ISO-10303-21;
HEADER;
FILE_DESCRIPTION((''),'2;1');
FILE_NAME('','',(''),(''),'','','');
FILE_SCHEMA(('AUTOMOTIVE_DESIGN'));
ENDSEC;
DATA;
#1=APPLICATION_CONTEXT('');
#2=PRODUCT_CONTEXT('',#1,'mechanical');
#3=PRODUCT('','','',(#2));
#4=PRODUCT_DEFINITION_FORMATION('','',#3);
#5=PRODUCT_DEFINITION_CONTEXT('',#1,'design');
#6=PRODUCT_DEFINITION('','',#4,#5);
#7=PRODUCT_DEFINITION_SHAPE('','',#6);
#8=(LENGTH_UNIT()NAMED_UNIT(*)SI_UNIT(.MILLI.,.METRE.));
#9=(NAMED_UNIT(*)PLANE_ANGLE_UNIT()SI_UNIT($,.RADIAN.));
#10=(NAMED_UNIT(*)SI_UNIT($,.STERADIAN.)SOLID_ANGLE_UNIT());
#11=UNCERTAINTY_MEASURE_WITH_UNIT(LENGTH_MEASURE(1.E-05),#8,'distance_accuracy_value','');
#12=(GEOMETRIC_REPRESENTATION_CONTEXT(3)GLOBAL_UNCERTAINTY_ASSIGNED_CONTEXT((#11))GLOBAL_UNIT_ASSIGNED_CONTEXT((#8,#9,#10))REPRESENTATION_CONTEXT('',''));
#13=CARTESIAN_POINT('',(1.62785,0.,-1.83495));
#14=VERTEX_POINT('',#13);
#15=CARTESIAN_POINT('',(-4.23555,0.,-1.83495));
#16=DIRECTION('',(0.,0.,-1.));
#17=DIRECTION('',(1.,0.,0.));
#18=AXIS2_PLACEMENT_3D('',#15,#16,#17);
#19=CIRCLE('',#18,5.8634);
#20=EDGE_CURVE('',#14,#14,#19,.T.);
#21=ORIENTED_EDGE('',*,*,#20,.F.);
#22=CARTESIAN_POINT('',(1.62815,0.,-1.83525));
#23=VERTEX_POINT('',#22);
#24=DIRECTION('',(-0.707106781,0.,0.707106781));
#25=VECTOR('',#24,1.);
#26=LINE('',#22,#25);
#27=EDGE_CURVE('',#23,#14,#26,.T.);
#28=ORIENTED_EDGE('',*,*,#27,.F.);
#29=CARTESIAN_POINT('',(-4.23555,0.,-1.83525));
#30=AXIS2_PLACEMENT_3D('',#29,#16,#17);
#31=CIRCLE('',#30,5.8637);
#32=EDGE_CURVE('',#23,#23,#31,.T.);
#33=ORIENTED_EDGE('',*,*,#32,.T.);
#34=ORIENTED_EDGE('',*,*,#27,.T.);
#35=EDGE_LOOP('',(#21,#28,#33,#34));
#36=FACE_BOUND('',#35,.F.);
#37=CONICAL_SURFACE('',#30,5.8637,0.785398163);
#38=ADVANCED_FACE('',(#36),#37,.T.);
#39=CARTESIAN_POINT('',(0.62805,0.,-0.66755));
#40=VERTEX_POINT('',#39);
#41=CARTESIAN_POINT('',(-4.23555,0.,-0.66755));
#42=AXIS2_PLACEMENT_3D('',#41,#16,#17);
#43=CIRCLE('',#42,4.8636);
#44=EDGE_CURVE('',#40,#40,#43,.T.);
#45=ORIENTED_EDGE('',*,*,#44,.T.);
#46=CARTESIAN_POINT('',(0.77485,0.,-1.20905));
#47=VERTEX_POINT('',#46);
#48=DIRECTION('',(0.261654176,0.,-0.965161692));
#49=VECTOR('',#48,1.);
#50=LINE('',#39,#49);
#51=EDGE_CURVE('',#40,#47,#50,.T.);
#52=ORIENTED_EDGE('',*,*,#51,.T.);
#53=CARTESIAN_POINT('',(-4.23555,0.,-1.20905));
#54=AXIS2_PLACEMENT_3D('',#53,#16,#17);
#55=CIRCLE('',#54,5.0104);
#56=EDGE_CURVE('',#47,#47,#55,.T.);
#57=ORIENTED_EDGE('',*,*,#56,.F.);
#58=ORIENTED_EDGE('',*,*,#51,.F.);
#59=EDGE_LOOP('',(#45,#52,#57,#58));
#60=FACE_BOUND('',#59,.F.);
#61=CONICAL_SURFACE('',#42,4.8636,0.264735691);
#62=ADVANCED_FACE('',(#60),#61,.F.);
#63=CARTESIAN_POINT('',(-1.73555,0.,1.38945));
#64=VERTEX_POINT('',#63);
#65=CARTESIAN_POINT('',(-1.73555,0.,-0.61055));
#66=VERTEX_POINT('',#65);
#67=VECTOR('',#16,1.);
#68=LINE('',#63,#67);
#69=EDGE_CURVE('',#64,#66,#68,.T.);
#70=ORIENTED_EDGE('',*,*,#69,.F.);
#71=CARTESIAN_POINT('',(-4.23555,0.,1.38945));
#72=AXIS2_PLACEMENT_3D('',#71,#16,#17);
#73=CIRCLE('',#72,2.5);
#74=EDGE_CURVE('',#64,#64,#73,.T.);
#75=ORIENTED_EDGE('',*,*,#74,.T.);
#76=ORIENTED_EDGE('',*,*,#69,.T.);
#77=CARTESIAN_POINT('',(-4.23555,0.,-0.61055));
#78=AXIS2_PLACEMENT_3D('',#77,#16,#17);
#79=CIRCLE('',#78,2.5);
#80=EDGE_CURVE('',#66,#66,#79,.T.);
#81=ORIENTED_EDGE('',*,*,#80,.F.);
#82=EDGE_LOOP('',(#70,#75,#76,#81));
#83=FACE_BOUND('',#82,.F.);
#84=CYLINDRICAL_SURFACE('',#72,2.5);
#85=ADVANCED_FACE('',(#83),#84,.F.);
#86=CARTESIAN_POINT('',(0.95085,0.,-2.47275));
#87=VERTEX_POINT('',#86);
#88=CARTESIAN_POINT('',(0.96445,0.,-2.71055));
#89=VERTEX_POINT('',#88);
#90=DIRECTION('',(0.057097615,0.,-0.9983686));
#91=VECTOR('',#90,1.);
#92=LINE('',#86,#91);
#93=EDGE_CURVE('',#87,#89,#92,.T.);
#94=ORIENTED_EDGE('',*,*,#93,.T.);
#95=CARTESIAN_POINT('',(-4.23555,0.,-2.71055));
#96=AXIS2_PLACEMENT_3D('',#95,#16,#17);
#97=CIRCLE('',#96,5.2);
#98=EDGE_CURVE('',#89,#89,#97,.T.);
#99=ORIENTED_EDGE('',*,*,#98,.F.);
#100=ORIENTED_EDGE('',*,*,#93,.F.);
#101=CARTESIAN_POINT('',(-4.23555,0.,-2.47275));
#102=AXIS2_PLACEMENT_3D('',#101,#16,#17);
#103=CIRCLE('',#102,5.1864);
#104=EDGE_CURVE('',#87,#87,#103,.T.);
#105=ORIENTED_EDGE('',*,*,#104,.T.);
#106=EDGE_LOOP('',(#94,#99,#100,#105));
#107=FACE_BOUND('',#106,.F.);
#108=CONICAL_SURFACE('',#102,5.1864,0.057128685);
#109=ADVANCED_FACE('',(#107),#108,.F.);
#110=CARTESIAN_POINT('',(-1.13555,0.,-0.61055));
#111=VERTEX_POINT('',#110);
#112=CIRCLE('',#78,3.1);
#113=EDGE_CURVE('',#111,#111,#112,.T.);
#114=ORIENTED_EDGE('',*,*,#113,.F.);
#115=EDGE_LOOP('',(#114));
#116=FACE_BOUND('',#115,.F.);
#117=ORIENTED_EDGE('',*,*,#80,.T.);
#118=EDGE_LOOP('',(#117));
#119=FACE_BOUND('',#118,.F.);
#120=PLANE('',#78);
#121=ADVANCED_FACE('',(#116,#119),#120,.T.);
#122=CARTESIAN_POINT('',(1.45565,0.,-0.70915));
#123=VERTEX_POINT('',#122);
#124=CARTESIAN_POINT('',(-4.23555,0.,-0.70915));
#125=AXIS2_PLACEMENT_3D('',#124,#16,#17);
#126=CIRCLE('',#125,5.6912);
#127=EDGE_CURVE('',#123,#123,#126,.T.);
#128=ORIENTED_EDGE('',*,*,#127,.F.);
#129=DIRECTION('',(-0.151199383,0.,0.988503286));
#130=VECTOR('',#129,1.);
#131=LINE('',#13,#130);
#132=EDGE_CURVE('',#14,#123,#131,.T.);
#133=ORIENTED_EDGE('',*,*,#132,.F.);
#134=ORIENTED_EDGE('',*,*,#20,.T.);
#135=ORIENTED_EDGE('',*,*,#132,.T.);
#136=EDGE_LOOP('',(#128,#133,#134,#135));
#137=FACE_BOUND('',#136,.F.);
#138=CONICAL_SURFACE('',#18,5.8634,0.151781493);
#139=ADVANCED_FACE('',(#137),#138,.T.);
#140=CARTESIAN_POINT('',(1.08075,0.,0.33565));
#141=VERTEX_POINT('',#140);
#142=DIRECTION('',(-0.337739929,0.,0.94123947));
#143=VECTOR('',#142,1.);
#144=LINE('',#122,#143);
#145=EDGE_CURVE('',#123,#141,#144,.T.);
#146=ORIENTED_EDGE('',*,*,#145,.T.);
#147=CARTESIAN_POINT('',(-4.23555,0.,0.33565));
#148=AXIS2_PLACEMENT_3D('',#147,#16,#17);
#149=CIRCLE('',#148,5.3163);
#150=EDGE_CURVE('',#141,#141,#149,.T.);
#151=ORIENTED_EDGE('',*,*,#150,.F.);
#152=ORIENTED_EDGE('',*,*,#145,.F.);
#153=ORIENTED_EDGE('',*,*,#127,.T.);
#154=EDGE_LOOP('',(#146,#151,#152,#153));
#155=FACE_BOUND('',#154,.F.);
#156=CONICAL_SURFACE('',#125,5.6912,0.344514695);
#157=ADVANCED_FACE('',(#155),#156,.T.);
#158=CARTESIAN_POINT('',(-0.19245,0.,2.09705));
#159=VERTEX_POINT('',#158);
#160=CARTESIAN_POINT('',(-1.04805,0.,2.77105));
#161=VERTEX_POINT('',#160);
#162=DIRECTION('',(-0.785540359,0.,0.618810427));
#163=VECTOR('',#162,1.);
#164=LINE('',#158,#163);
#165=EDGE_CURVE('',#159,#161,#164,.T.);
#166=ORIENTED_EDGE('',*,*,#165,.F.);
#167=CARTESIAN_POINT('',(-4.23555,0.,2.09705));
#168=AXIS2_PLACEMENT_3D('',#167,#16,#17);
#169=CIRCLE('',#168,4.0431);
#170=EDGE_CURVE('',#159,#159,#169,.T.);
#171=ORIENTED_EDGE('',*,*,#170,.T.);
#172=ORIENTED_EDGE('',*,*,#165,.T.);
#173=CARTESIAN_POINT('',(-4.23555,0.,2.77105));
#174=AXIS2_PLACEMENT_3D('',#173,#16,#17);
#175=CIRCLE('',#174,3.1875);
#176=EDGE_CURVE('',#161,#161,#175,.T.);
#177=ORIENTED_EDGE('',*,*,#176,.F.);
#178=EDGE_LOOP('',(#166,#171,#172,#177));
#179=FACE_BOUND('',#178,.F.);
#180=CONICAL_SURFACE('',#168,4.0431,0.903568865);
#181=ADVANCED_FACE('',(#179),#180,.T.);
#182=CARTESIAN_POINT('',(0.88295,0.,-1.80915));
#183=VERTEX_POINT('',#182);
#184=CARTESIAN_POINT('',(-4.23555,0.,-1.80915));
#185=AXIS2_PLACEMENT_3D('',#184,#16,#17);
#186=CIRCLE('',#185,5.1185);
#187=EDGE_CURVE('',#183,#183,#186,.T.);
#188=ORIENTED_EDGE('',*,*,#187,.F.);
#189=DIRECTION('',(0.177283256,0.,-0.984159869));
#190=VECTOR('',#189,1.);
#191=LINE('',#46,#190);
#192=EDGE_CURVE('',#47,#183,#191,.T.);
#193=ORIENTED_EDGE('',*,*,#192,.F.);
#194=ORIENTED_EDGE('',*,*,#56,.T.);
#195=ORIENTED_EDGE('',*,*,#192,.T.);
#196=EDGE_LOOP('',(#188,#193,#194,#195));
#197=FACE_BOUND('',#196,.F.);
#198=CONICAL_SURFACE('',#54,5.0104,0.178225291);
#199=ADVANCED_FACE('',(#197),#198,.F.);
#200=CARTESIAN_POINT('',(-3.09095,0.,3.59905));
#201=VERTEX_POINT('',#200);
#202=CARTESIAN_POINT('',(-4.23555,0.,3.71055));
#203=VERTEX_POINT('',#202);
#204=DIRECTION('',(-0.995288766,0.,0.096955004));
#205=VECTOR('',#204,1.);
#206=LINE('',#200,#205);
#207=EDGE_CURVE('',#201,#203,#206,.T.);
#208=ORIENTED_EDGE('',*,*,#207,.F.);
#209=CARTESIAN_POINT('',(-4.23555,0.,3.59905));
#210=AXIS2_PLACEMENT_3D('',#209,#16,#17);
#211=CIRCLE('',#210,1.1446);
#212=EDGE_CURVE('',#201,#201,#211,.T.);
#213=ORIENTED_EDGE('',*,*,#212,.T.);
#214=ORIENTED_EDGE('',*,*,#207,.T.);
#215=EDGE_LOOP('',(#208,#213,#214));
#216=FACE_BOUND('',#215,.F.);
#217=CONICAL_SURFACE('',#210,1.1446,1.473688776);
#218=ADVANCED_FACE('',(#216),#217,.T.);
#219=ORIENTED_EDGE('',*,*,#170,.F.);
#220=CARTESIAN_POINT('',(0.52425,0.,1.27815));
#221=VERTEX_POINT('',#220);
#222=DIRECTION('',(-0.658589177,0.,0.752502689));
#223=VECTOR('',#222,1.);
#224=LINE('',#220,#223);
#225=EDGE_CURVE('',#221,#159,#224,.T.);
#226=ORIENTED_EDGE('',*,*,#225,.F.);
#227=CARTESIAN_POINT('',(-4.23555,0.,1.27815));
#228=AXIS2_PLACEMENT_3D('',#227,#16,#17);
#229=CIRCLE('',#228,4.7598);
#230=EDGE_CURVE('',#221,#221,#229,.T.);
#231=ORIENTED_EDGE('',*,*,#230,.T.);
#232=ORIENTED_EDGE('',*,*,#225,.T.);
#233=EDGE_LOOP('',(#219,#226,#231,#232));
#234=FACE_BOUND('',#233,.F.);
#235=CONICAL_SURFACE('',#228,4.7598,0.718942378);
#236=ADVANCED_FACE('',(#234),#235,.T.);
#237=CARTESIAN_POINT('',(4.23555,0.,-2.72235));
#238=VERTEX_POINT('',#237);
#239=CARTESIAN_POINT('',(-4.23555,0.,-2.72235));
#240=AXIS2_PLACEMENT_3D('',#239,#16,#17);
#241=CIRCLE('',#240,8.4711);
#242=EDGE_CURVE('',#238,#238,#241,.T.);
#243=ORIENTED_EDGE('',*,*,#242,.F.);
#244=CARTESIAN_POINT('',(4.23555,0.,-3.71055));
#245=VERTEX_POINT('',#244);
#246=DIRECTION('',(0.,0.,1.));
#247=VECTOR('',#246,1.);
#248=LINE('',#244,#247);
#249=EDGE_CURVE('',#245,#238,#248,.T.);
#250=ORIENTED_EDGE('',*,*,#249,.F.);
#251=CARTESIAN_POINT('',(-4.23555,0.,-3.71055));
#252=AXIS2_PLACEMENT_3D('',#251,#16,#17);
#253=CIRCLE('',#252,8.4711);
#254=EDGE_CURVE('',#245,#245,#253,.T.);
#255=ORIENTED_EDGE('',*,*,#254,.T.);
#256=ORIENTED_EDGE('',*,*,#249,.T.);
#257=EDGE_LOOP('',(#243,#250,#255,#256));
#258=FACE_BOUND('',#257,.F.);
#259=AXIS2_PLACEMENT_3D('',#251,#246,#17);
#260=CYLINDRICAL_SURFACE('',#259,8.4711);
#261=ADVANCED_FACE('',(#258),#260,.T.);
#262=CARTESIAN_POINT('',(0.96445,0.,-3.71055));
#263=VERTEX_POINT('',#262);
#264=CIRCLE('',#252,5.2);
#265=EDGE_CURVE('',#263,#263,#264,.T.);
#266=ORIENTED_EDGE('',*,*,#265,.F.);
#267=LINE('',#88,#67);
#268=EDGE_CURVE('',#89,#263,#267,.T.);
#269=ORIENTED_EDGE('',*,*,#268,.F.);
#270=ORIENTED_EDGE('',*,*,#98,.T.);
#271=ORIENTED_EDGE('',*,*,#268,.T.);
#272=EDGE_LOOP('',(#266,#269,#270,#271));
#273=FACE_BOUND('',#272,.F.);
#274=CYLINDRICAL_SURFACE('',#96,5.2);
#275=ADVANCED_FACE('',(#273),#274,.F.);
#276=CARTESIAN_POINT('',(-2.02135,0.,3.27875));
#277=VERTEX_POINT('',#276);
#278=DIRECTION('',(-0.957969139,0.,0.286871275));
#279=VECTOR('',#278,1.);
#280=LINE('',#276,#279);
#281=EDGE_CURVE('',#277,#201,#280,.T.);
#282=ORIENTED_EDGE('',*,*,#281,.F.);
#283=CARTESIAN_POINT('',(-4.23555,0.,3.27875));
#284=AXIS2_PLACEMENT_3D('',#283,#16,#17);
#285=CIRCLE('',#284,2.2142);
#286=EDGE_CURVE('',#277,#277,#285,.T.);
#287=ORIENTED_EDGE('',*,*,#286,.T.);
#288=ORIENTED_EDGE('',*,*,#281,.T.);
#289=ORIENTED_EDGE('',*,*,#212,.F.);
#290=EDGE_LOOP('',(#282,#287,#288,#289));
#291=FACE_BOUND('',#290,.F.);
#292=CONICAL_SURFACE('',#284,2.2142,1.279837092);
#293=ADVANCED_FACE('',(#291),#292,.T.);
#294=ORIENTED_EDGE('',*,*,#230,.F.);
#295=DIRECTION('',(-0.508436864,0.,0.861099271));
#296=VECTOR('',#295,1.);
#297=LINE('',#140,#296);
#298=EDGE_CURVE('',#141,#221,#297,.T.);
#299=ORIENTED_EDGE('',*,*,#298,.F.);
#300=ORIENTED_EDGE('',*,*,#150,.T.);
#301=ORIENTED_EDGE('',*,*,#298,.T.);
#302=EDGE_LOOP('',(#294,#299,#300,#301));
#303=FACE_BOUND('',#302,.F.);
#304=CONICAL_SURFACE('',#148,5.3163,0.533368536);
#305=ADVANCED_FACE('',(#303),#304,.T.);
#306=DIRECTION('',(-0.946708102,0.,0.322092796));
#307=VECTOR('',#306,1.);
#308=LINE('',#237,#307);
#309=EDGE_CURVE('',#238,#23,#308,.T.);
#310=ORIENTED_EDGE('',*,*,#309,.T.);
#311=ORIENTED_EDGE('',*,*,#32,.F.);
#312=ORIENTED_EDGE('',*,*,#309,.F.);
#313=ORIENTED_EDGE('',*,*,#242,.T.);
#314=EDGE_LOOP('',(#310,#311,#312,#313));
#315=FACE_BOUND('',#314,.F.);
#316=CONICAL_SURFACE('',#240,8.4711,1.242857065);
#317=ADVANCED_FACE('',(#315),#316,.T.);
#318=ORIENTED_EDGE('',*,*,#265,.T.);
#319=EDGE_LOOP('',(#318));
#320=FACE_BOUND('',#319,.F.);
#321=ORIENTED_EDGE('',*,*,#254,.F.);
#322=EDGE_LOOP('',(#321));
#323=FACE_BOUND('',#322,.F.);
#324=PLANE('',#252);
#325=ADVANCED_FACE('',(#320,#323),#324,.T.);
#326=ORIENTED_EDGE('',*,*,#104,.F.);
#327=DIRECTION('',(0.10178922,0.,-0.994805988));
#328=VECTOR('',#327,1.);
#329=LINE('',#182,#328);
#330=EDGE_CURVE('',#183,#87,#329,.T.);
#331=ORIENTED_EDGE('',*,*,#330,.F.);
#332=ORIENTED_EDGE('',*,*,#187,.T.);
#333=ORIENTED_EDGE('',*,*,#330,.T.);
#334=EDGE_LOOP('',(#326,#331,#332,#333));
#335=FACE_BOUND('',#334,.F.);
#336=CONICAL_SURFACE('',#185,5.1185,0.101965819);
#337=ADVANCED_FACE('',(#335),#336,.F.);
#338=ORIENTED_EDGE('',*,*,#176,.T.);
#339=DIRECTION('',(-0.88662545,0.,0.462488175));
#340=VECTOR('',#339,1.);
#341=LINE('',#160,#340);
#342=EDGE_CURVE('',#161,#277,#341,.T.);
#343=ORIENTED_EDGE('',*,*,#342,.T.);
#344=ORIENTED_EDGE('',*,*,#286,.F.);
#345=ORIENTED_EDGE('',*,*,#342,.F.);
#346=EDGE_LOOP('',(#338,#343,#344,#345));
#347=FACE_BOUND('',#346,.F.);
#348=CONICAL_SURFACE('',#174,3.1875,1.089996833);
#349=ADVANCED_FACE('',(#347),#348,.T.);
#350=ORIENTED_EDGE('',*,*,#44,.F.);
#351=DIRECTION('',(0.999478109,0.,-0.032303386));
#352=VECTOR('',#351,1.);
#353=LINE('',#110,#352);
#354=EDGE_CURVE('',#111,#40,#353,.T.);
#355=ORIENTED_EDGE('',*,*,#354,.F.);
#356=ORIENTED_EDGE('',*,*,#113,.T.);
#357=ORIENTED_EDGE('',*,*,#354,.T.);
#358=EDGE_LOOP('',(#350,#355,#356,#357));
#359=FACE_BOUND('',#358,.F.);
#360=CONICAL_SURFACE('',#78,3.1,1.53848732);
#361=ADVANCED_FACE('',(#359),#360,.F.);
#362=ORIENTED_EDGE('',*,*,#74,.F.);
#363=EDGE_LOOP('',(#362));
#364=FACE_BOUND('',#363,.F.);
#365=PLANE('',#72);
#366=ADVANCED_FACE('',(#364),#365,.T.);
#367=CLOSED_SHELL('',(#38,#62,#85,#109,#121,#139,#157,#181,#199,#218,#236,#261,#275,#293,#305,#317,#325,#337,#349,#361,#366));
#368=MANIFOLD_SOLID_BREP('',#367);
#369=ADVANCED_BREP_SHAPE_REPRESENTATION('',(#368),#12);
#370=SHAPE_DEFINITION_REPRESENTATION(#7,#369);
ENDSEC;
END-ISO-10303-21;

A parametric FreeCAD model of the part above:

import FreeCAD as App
import Part
import Sketcher

V = App.Vector
Q = App.Units.Quantity

doc = App.newDocument("Part")
body = doc.addObject("PartDesign::Body", "Body")

# Sketch on XZ plane
sketch1 = doc.addObject("Sketcher::SketchObject", "Sketch")
body.addObject(sketch1)
sketch1.AttachmentSupport = (doc.XZ_Plane, [""])
sketch1.MapMode = "FlatFace"
sketch1.addGeometry([
    Part.LineSegment(V(0.96445, -3.71055, 0), V(4.23555, -3.71055, 0)),  # 0
    Part.LineSegment(V(4.23555, -3.71055, 0), V(4.23555, -2.72235, 0)),  # 1
    Part.LineSegment(V(4.23555, -2.72235, 0), V(1.62815, -1.83525, 0)),  # 2
    Part.LineSegment(V(1.62815, -1.83525, 0), V(1.62785, -1.83495, 0)),  # 3
    Part.LineSegment(V(1.62785, -1.83495, 0), V(1.45565, -0.70915, 0)),  # 4
    Part.LineSegment(V(1.45565, -0.70915, 0), V(1.08075, 0.33565, 0)),  # 5
    Part.LineSegment(V(1.08075, 0.33565, 0), V(0.52425, 1.27815, 0)),  # 6
    Part.LineSegment(V(0.52425, 1.27815, 0), V(-0.19245, 2.09705, 0)),  # 7
    Part.LineSegment(V(-0.19245, 2.09705, 0), V(-1.04805, 2.77105, 0)),  # 8
    Part.LineSegment(V(-1.04805, 2.77105, 0), V(-2.02135, 3.27875, 0)),  # 9
    Part.LineSegment(V(-2.02135, 3.27875, 0), V(-3.09095, 3.59905, 0)),  # 10
    Part.LineSegment(V(-3.09095, 3.59905, 0), V(-4.23555, 3.71055, 0)),  # 11
    Part.LineSegment(V(-4.23555, 3.71055, 0), V(-4.23555, 1.38945, 0)),  # 12
    Part.LineSegment(V(-4.23555, 1.38945, 0), V(-1.73555, 1.38945, 0)),  # 13
    Part.LineSegment(V(-1.73555, 1.38945, 0), V(-1.73555, -0.61055, 0)),  # 14
    Part.LineSegment(V(-1.73555, -0.61055, 0), V(-1.13555, -0.61055, 0)),  # 15
    Part.LineSegment(V(-1.13555, -0.61055, 0), V(0.62805, -0.66755, 0)),  # 16
    Part.LineSegment(V(0.62805, -0.66755, 0), V(0.77485, -1.20905, 0)),  # 17
    Part.LineSegment(V(0.77485, -1.20905, 0), V(0.88295, -1.80915, 0)),  # 18
    Part.LineSegment(V(0.88295, -1.80915, 0), V(0.95085, -2.47275, 0)),  # 19
    Part.LineSegment(V(0.95085, -2.47275, 0), V(0.96445, -2.71055, 0)),  # 20
    Part.LineSegment(V(0.96445, -2.71055, 0), V(0.96445, -3.71055, 0)),  # 21
], False)
sketch1.addGeometry(Part.LineSegment(V(-4.23555, 3.71055, 0), V(-4.23555, -3.71055, 0)), True)  # axis
sketch1.addConstraint([
    Sketcher.Constraint("Coincident", 0, 2, 1, 1),
    Sketcher.Constraint("Coincident", 1, 2, 2, 1),
    Sketcher.Constraint("Coincident", 2, 2, 3, 1),
    Sketcher.Constraint("Coincident", 3, 2, 4, 1),
    Sketcher.Constraint("Coincident", 4, 2, 5, 1),
    Sketcher.Constraint("Coincident", 5, 2, 6, 1),
    Sketcher.Constraint("Coincident", 6, 2, 7, 1),
    Sketcher.Constraint("Coincident", 7, 2, 8, 1),
    Sketcher.Constraint("Coincident", 8, 2, 9, 1),
    Sketcher.Constraint("Coincident", 9, 2, 10, 1),
    Sketcher.Constraint("Coincident", 10, 2, 11, 1),
    Sketcher.Constraint("Coincident", 11, 2, 12, 1),
    Sketcher.Constraint("Coincident", 12, 2, 13, 1),
    Sketcher.Constraint("Coincident", 13, 2, 14, 1),
    Sketcher.Constraint("Coincident", 14, 2, 15, 1),
    Sketcher.Constraint("Coincident", 15, 2, 16, 1),
    Sketcher.Constraint("Coincident", 16, 2, 17, 1),
    Sketcher.Constraint("Coincident", 17, 2, 18, 1),
    Sketcher.Constraint("Coincident", 18, 2, 19, 1),
    Sketcher.Constraint("Coincident", 19, 2, 20, 1),
    Sketcher.Constraint("Coincident", 20, 2, 21, 1),
    Sketcher.Constraint("Coincident", 21, 2, 0, 1),
    Sketcher.Constraint("Horizontal", 0),
    Sketcher.Constraint("Vertical", 1),
    Sketcher.Constraint("Vertical", 12),
    Sketcher.Constraint("Horizontal", 13),
    Sketcher.Constraint("Vertical", 14),
    Sketcher.Constraint("Horizontal", 15),
    Sketcher.Constraint("Vertical", 21),
    Sketcher.Constraint("Vertical", 22),
    Sketcher.Constraint("Coincident", 22, 1, 11, 2),
    Sketcher.Constraint("Symmetric", 0, 2, 11, 2, -1, 1),
    Sketcher.Constraint("Horizontal", 21, 2, 22, 2),
    Sketcher.Constraint("DistanceY", 14, 2, 14, 1, 2.0),
    Sketcher.Constraint("DistanceY", 21, 2, 21, 1, 1.0),
    Sketcher.Constraint("Angle", 3, Q("135 deg")),
    Sketcher.Constraint("DistanceX", 13, 1, 13, 2, 2.5),
    Sketcher.Constraint("DistanceX", 15, 1, 15, 2, 0.6),
    Sketcher.Constraint("DistanceY", 18, 2, 4, 2, 1.1),
    Sketcher.Constraint("DistanceY", 22, 2, 14, 2, 3.1),
    Sketcher.Constraint("DistanceX", 22, 2, 21, 2, 5.2),
    Sketcher.Constraint("DistanceX", 0, 1, 0, 2, 3.2711),
    Sketcher.Constraint("DistanceY", 1, 1, 1, 2, 0.9882),
    Sketcher.Constraint("DistanceY", 12, 2, 12, 1, 2.3211),
    Sketcher.Constraint("DistanceY", 1, 2, 5, 2, 3.058),
    Sketcher.Constraint("DistanceY", 3, 2, 7, 2, 3.932),
    Sketcher.Constraint("DistanceY", 7, 2, 8, 2, 0.674),
    Sketcher.Constraint("DistanceX", 9, 2, 4, 2, 3.477),
    Sketcher.Constraint("DistanceY", 8, 2, 10, 2, 0.828),
    Sketcher.Constraint("DistanceY", 16, 2, 15, 2, 0.057),
    Sketcher.Constraint("DistanceX", 17, 2, 3, 2, 0.853),
    Sketcher.Constraint("DistanceX", 19, 2, 3, 2, 0.677),
    Sketcher.Constraint("DistanceX", 2, 2, 1, 2, 2.6074),
    Sketcher.Constraint("DistanceY", 1, 2, 2, 2, 0.8871),
    Sketcher.Constraint("DistanceX", 3, 2, 2, 2, 0.0003),
    Sketcher.Constraint("DistanceX", 4, 2, 3, 2, 0.1722),
    Sketcher.Constraint("DistanceY", 3, 2, 4, 2, 1.1258),
    Sketcher.Constraint("DistanceX", 5, 2, 4, 2, 0.3749),
    Sketcher.Constraint("DistanceX", 6, 2, 5, 2, 0.5565),
    Sketcher.Constraint("DistanceY", 5, 2, 6, 2, 0.9425),
    Sketcher.Constraint("DistanceX", 7, 2, 6, 2, 0.7167),
    Sketcher.Constraint("DistanceX", 8, 2, 7, 2, 0.8556),
    Sketcher.Constraint("DistanceY", 8, 2, 9, 2, 0.5077),
    Sketcher.Constraint("DistanceX", 10, 2, 9, 2, 1.0696),
    Sketcher.Constraint("DistanceX", 16, 2, 4, 2, 0.8276),
    Sketcher.Constraint("DistanceY", 17, 2, 16, 2, 0.5415),
    Sketcher.Constraint("DistanceX", 17, 2, 18, 2, 0.1081),
    Sketcher.Constraint("DistanceY", 19, 2, 18, 2, 0.6636),
])
revolution = doc.addObject("PartDesign::Revolution", "Revolution")
body.addObject(revolution)
revolution.Profile = sketch1
revolution.ReferenceAxis = (sketch1, ["Axis0"])
revolution.Angle = 360

doc.recompute()
